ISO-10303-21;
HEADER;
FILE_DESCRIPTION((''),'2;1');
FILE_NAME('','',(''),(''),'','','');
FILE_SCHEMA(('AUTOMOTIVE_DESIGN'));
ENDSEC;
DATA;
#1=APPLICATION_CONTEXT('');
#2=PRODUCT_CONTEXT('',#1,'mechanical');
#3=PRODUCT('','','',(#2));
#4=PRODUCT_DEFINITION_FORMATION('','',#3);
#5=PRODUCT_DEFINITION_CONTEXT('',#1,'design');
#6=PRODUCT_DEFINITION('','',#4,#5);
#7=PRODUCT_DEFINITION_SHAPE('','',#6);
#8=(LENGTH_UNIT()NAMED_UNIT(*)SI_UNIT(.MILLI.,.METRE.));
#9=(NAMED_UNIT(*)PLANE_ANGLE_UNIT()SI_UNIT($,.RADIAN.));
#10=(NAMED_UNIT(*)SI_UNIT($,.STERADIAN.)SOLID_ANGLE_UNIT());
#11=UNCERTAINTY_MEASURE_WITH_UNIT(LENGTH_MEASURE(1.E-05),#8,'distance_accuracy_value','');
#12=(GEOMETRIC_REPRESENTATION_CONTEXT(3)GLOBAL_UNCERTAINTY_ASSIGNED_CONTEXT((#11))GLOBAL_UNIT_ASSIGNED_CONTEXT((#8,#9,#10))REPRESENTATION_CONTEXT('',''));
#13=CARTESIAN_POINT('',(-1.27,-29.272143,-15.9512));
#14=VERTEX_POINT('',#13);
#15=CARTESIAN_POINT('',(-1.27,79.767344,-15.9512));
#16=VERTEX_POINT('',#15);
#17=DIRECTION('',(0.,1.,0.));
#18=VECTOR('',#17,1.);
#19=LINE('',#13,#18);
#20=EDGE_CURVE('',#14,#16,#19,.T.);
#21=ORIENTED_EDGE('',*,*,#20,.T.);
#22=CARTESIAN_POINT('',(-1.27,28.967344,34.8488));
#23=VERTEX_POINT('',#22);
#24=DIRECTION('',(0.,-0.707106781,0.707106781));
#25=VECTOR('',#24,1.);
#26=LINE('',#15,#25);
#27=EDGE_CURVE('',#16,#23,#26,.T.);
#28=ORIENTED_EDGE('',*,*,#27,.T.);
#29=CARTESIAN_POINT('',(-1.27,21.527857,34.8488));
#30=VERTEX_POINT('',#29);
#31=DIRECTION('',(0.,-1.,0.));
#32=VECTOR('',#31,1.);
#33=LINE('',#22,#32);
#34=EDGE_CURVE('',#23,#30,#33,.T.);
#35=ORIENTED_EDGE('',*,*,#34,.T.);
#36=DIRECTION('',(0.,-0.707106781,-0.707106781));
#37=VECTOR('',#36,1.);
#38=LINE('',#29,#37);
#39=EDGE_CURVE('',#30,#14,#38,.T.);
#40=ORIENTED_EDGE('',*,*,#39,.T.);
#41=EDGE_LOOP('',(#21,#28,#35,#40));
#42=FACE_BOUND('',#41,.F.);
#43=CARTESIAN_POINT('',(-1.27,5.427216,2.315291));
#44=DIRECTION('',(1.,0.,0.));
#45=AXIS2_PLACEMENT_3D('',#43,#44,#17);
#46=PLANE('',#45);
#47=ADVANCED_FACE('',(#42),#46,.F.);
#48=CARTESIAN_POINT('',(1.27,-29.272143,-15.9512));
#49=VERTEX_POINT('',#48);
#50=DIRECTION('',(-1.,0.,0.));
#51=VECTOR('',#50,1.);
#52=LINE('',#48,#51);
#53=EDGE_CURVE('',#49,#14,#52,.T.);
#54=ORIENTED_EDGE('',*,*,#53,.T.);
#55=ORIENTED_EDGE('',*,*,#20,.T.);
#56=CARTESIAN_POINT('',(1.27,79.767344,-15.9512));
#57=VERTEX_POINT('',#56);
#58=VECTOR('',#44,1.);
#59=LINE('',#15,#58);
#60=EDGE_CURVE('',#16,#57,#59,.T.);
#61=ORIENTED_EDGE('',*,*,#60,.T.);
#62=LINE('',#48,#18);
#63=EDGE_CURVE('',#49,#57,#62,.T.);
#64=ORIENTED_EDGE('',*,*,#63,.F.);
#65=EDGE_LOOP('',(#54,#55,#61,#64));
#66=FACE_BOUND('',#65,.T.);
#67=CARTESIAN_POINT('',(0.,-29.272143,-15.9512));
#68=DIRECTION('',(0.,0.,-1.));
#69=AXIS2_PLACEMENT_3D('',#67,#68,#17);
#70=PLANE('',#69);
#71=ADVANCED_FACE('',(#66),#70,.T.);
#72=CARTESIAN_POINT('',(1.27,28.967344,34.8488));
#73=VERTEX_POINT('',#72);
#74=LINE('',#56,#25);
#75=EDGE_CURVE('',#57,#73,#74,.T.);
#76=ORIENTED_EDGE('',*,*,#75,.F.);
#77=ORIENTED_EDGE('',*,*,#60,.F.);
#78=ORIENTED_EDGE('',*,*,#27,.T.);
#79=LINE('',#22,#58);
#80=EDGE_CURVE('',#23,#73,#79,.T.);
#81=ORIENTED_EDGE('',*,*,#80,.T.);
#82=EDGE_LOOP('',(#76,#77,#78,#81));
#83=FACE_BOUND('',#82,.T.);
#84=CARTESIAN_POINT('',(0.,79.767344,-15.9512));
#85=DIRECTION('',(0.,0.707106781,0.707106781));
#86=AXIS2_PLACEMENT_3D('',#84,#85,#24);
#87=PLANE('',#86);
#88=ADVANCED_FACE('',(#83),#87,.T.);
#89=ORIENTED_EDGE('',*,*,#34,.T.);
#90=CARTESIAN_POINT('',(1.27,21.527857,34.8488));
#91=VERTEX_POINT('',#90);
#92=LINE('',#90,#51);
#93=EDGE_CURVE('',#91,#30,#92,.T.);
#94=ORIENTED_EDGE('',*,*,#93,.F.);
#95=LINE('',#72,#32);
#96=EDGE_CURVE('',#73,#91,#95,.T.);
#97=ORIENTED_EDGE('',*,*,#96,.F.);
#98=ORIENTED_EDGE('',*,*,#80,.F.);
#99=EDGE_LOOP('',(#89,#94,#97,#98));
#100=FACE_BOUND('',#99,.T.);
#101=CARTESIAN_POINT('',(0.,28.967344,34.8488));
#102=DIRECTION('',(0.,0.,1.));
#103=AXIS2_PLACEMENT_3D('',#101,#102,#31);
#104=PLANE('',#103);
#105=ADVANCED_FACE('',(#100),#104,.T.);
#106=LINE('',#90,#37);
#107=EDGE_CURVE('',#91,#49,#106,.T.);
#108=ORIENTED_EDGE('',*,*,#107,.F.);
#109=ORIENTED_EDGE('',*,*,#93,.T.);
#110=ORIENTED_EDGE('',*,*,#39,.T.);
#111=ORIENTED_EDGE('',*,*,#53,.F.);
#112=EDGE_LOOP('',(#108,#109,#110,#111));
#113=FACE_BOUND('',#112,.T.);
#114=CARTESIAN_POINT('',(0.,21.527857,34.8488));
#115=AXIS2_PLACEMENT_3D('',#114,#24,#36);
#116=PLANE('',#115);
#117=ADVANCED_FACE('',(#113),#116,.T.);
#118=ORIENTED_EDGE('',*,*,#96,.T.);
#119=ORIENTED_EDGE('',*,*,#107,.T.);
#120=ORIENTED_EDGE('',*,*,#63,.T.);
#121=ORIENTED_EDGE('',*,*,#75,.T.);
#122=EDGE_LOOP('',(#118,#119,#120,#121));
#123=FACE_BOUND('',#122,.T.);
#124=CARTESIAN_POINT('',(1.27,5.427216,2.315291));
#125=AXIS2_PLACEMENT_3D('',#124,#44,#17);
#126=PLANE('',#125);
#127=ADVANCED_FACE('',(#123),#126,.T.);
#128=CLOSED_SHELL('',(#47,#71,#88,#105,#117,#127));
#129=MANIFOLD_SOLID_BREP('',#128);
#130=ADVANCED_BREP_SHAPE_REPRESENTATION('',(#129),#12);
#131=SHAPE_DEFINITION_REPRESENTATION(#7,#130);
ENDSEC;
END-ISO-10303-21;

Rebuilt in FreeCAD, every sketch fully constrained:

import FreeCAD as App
import Part
import Sketcher

V = App.Vector
Q = App.Units.Quantity


def add_polygon(sketch, points):
    """Adds a closed chain of lines whose ends are joined by coincident constraints."""
    first, n = sketch.GeometryCount, len(points)
    for a, b in zip(points, points[1:] + points[:1]):
        sketch.addGeometry(Part.LineSegment(App.Vector(*a, 0), App.Vector(*b, 0)), False)
    for i in range(n):
        sketch.addConstraint(Sketcher.Constraint("Coincident", first + i, 2, first + (i + 1) % n, 1))

doc = App.newDocument("Part")
body = doc.addObject("PartDesign::Body", "Body")

# Sketch on YZ plane
sketch1 = doc.addObject("Sketcher::SketchObject", "Sketch")
body.addObject(sketch1)
sketch1.AttachmentSupport = (doc.YZ_Plane, [""])
sketch1.MapMode = "FlatFace"
add_polygon(sketch1, [(-29, -16), (80, -16), (29, 35), (22, 35)])  # lines 0-3
sketch1.addConstraint([
    Sketcher.Constraint("Horizontal", 0),
    Sketcher.Constraint("Horizontal", 2),
    Sketcher.Constraint("Perpendicular", 1, 3),
    Sketcher.Constraint("Equal", 1, 3),
    Sketcher.Constraint("DistanceX", 1, 2, 0, 2, Q("2 in")),
    Sketcher.Constraint("DistanceY", 0, 2, -1, 1, Q("0.628 in")),
    Sketcher.Constraint("DistanceX", 0, 1, 0, 2, Q("109.039487 mm")),
    Sketcher.Constraint("DistanceX", -1, 1, 0, 2, Q("79.767344 mm")),
])
pad1 = doc.addObject("PartDesign::Pad", "Pad")
body.addObject(pad1)
pad1.Profile = sketch1
pad1.Length = Q("0.1 in")
pad1.Midplane = True

doc.recompute()
